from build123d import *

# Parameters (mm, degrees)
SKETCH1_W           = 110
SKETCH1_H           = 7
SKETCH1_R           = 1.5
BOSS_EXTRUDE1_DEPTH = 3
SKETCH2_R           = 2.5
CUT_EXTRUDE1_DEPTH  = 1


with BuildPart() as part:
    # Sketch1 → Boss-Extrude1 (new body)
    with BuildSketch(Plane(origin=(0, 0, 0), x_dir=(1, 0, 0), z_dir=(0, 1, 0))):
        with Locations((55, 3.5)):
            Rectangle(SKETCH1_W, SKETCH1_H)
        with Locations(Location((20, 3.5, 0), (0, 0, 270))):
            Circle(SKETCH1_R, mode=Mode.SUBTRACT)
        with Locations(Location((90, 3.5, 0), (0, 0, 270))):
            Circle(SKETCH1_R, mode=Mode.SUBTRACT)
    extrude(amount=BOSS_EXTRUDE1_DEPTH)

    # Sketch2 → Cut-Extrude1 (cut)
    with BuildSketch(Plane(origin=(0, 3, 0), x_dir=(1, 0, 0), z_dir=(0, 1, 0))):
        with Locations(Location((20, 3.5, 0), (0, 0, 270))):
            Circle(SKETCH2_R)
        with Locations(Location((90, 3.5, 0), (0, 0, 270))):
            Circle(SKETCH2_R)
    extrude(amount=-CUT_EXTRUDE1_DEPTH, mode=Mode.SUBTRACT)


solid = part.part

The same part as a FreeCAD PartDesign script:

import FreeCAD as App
import Part
import Sketcher

doc = App.newDocument("Part")
params = doc.addObject("Spreadsheet::Sheet", "Params")
for row, (alias, value) in enumerate([
    ("sketch1_diameter", "3 mm"),
    ("sketch1_width", "110 mm"),
    ("sketch1_height", "7 mm"),
    ("pad1_length", "3 mm"),
    ("sketch2_diameter", "5 mm"),
    ("pocket1_length", "1 mm"),
], start=1):
    params.set(f"A{row}", alias)
    params.set(f"B{row}", "=" + value)
    params.setAlias(f"B{row}", alias)

body = doc.addObject("PartDesign::Body", "Body")

# Sketch on XZ plane
sketch1 = body.newObject("Sketcher::SketchObject", "Sketch")
sketch1.AttachmentSupport = (doc.getObject("XZ_Plane"), [""])
sketch1.MapMode = "FlatFace"
sketch1.addGeometry([
    Part.LineSegment(App.Vector(0, -7, 0), App.Vector(0, 0, 0)),  # 0
    Part.LineSegment(App.Vector(0, 0, 0), App.Vector(110, 0, 0)),  # 1
    Part.LineSegment(App.Vector(110, 0, 0), App.Vector(110, -7, 0)),  # 2
    Part.LineSegment(App.Vector(110, -7, 0), App.Vector(0, -7, 0)),  # 3
    Part.Circle(App.Vector(20, -3.5, 0), App.Vector(0, 0, 1), 1.5),  # 4
    Part.Circle(App.Vector(90, -3.5, 0), App.Vector(0, 0, 1), 1.5),  # 5
], False)
sketch1.addConstraint([
    Sketcher.Constraint("Coincident", 0, 2, 1, 1),
    Sketcher.Constraint("Coincident", 1, 2, 2, 1),
    Sketcher.Constraint("Coincident", 2, 2, 3, 1),
    Sketcher.Constraint("Coincident", 3, 2, 0, 1),
    Sketcher.Constraint("Vertical", 0),
    Sketcher.Constraint("Horizontal", 1),
    Sketcher.Constraint("Vertical", 2),
    Sketcher.Constraint("Horizontal", 3),
    Sketcher.Constraint("Coincident", 0, 2, -1, 1),
    Sketcher.Constraint("Equal", 4, 5),
    Sketcher.Constraint("Horizontal", 4, 3, 5, 3),
    Sketcher.Constraint("Diameter", 4, 3.0),
    Sketcher.Constraint("DistanceX", 1, 1, 1, 2, 110.0),
    Sketcher.Constraint("DistanceY", 0, 1, 0, 2, 7.0),
    Sketcher.Constraint("DistanceX", -1, 1, 4, 3, 20.0),
    Sketcher.Constraint("DistanceX", -1, 1, 5, 3, 90.0),
    Sketcher.Constraint("DistanceY", 4, 3, -1, 1, 3.5),
])
sketch1.setExpression("Constraints[11]", "Params.sketch1_diameter")
sketch1.setExpression("Constraints[12]", "Params.sketch1_width")
sketch1.setExpression("Constraints[13]", "Params.sketch1_height")
pad1 = body.newObject("PartDesign::Pad", "Pad")
pad1.Profile = sketch1
pad1.setExpression("Length", "Params.pad1_length")
pad1.Reversed = True

# Sketch on XZ plane
sketch2 = body.newObject("Sketcher::SketchObject", "Sketch001")
sketch2.AttachmentSupport = (doc.getObject("XZ_Plane"), [""])
sketch2.MapMode = "FlatFace"
sketch2.AttachmentOffset = App.Placement(App.Vector(0, 0, -3), App.Rotation())
sketch2.addGeometry([
    Part.Circle(App.Vector(20, -3.5, 0), App.Vector(0, 0, 1), 2.5),
    Part.Circle(App.Vector(90, -3.5, 0), App.Vector(0, 0, 1), 2.5),
], False)
sketch2.addConstraint([
    Sketcher.Constraint("Equal", 0, 1),
    Sketcher.Constraint("Horizontal", 0, 3, 1, 3),
    Sketcher.Constraint("Diameter", 0, 5.0),
    Sketcher.Constraint("DistanceX", -1, 1, 0, 3, 20.0),
    Sketcher.Constraint("DistanceX", -1, 1, 1, 3, 90.0),
    Sketcher.Constraint("DistanceY", 0, 3, -1, 1, 3.5),
])
sketch2.setExpression("Constraints[2]", "Params.sketch2_diameter")
pocket1 = body.newObject("PartDesign::Pocket", "Pocket")
pocket1.Profile = sketch2
pocket1.setExpression("Length", "Params.pocket1_length")
pocket1.Reversed = True

doc.recompute()
